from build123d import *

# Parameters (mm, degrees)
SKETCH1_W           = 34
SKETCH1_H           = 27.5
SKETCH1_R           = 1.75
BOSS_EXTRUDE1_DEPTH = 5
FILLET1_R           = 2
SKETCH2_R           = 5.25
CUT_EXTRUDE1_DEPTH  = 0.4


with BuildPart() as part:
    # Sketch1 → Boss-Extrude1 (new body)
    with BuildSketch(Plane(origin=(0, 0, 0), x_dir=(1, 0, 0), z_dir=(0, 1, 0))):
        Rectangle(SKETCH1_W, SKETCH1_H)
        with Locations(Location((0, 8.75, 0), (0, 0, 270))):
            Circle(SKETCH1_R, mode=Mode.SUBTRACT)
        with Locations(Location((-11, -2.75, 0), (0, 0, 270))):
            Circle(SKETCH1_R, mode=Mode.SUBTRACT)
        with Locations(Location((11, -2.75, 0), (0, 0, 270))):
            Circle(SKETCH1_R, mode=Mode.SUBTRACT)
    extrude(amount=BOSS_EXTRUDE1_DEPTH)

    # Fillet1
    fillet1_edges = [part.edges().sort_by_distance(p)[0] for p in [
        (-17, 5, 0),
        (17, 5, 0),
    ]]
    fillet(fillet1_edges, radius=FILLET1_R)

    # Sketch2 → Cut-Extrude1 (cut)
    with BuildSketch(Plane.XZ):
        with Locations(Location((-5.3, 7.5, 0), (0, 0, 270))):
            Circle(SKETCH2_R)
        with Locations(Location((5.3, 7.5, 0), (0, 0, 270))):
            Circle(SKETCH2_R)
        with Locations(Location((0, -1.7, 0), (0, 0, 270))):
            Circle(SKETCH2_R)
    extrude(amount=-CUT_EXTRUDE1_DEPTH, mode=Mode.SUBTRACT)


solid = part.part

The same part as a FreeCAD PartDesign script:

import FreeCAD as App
import Part
import Sketcher
from FreeCAD import Vector


def edges_at(feature, points):
    """Names of the edges that pass closest to the given points."""
    edges = feature.Shape.Edges
    near = lambda p: min(range(len(edges)), key=lambda i: edges[i].distToShape(Part.Vertex(*p))[0])
    return sorted({f"Edge{near(p) + 1}" for p in points})


def add_polygon(sketch, points):
    """Adds a closed chain of lines whose ends are joined by coincident constraints."""
    first, n = sketch.GeometryCount, len(points)
    for a, b in zip(points, points[1:] + points[:1]):
        sketch.addGeometry(Part.LineSegment(App.Vector(*a, 0), App.Vector(*b, 0)), False)
    for i in range(n):
        sketch.addConstraint(Sketcher.Constraint("Coincident", first + i, 2, first + (i + 1) % n, 1))

doc = App.newDocument("Part")
body = doc.addObject("PartDesign::Body", "Body")

# Sketch on XZ plane
sketch1 = body.newObject("Sketcher::SketchObject", "Sketch")
sketch1.AttachmentSupport = (doc.getObject("XZ_Plane"), [""])
sketch1.MapMode = "FlatFace"
add_polygon(sketch1, [(-17, -13.8), (-17, 13.8), (17, 13.8), (17, -13.8)])  # lines 0-3
sketch1.addGeometry(Part.Circle(Vector(-11, 2.8, 0), Vector(0, 0, 1), 1.8), False)  # 4
sketch1.addGeometry(Part.Circle(Vector(11, 2.8, 0), Vector(0, 0, 1), 1.8), False)  # 5
sketch1.addGeometry(Part.Circle(Vector(0, -8.8, 0), Vector(0, 0, 1), 1.8), False)  # 6
sketch1.addConstraint(Sketcher.Constraint("Vertical", 0))
sketch1.addConstraint(Sketcher.Constraint("Horizontal", 1))
sketch1.addConstraint(Sketcher.Constraint("Vertical", 2))
sketch1.addConstraint(Sketcher.Constraint("Horizontal", 3))
sketch1.addConstraint(Sketcher.Constraint("Equal", 4, 5))
sketch1.addConstraint(Sketcher.Constraint("Equal", 5, 6))
sketch1.addConstraint(Sketcher.Constraint("Symmetric", 0, 2, 2, 2, -1, 1))
sketch1.addConstraint(Sketcher.Constraint("Symmetric", 4, 3, 5, 3, -2))
sketch1.addConstraint(Sketcher.Constraint("PointOnObject", 6, 3, -2))
sketch1.addConstraint(Sketcher.Constraint("Diameter", 4, 3.5))
sketch1.addConstraint(Sketcher.Constraint("DistanceX", 1, 1, 1, 2, 34.0))
sketch1.addConstraint(Sketcher.Constraint("DistanceY", 0, 1, 0, 2, 27.5))
sketch1.addConstraint(Sketcher.Constraint("DistanceX", 4, 3, -1, 1, 11.0))
sketch1.addConstraint(Sketcher.Constraint("DistanceY", 4, 3, 0, 2, 11.0))
sketch1.addConstraint(Sketcher.Constraint("DistanceY", 2, 2, 6, 3, 5.0))
pad1 = body.newObject("PartDesign::Pad", "Pad")
pad1.Profile = sketch1
pad1.Length = 5
pad1.Reversed = True
doc.recompute()

fillet = body.newObject("PartDesign::Fillet", "Fillet")
fillet.Base = (pad1, edges_at(pad1, [(-17, 5, 0), (17, 5, 0)]))
fillet.Radius = 2

# Sketch on XZ plane
sketch2 = body.newObject("Sketcher::SketchObject", "Sketch001")
sketch2.AttachmentSupport = (doc.getObject("XZ_Plane"), [""])
sketch2.MapMode = "FlatFace"
sketch2.addGeometry(Part.Circle(Vector(-5, 8, 0), Vector(0, 0, 1), 5), False)
sketch2.addGeometry(Part.Circle(Vector(5, 8, 0), Vector(0, 0, 1), 5), False)
sketch2.addGeometry(Part.Circle(Vector(0, -2, 0), Vector(0, 0, 1), 5), False)
sketch2.addConstraint(Sketcher.Constraint("Equal", 0, 1))
sketch2.addConstraint(Sketcher.Constraint("Equal", 1, 2))
sketch2.addConstraint(Sketcher.Constraint("Symmetric", 0, 3, 1, 3, -2))
sketch2.addConstraint(Sketcher.Constraint("PointOnObject", 2, 3, -2))
sketch2.addConstraint(Sketcher.Constraint("Diameter", 0, 10.5))
sketch2.addConstraint(Sketcher.Constraint("DistanceX", 0, 3, -1, 1, 5.3))
sketch2.addConstraint(Sketcher.Constraint("DistanceY", -1, 1, 0, 3, 7.5))
sketch2.addConstraint(Sketcher.Constraint("DistanceY", 2, 3, -1, 1, 1.7))
pocket1 = body.newObject("PartDesign::Pocket", "Pocket")
pocket1.Profile = sketch2
pocket1.Length = 0.4

doc.recompute()
